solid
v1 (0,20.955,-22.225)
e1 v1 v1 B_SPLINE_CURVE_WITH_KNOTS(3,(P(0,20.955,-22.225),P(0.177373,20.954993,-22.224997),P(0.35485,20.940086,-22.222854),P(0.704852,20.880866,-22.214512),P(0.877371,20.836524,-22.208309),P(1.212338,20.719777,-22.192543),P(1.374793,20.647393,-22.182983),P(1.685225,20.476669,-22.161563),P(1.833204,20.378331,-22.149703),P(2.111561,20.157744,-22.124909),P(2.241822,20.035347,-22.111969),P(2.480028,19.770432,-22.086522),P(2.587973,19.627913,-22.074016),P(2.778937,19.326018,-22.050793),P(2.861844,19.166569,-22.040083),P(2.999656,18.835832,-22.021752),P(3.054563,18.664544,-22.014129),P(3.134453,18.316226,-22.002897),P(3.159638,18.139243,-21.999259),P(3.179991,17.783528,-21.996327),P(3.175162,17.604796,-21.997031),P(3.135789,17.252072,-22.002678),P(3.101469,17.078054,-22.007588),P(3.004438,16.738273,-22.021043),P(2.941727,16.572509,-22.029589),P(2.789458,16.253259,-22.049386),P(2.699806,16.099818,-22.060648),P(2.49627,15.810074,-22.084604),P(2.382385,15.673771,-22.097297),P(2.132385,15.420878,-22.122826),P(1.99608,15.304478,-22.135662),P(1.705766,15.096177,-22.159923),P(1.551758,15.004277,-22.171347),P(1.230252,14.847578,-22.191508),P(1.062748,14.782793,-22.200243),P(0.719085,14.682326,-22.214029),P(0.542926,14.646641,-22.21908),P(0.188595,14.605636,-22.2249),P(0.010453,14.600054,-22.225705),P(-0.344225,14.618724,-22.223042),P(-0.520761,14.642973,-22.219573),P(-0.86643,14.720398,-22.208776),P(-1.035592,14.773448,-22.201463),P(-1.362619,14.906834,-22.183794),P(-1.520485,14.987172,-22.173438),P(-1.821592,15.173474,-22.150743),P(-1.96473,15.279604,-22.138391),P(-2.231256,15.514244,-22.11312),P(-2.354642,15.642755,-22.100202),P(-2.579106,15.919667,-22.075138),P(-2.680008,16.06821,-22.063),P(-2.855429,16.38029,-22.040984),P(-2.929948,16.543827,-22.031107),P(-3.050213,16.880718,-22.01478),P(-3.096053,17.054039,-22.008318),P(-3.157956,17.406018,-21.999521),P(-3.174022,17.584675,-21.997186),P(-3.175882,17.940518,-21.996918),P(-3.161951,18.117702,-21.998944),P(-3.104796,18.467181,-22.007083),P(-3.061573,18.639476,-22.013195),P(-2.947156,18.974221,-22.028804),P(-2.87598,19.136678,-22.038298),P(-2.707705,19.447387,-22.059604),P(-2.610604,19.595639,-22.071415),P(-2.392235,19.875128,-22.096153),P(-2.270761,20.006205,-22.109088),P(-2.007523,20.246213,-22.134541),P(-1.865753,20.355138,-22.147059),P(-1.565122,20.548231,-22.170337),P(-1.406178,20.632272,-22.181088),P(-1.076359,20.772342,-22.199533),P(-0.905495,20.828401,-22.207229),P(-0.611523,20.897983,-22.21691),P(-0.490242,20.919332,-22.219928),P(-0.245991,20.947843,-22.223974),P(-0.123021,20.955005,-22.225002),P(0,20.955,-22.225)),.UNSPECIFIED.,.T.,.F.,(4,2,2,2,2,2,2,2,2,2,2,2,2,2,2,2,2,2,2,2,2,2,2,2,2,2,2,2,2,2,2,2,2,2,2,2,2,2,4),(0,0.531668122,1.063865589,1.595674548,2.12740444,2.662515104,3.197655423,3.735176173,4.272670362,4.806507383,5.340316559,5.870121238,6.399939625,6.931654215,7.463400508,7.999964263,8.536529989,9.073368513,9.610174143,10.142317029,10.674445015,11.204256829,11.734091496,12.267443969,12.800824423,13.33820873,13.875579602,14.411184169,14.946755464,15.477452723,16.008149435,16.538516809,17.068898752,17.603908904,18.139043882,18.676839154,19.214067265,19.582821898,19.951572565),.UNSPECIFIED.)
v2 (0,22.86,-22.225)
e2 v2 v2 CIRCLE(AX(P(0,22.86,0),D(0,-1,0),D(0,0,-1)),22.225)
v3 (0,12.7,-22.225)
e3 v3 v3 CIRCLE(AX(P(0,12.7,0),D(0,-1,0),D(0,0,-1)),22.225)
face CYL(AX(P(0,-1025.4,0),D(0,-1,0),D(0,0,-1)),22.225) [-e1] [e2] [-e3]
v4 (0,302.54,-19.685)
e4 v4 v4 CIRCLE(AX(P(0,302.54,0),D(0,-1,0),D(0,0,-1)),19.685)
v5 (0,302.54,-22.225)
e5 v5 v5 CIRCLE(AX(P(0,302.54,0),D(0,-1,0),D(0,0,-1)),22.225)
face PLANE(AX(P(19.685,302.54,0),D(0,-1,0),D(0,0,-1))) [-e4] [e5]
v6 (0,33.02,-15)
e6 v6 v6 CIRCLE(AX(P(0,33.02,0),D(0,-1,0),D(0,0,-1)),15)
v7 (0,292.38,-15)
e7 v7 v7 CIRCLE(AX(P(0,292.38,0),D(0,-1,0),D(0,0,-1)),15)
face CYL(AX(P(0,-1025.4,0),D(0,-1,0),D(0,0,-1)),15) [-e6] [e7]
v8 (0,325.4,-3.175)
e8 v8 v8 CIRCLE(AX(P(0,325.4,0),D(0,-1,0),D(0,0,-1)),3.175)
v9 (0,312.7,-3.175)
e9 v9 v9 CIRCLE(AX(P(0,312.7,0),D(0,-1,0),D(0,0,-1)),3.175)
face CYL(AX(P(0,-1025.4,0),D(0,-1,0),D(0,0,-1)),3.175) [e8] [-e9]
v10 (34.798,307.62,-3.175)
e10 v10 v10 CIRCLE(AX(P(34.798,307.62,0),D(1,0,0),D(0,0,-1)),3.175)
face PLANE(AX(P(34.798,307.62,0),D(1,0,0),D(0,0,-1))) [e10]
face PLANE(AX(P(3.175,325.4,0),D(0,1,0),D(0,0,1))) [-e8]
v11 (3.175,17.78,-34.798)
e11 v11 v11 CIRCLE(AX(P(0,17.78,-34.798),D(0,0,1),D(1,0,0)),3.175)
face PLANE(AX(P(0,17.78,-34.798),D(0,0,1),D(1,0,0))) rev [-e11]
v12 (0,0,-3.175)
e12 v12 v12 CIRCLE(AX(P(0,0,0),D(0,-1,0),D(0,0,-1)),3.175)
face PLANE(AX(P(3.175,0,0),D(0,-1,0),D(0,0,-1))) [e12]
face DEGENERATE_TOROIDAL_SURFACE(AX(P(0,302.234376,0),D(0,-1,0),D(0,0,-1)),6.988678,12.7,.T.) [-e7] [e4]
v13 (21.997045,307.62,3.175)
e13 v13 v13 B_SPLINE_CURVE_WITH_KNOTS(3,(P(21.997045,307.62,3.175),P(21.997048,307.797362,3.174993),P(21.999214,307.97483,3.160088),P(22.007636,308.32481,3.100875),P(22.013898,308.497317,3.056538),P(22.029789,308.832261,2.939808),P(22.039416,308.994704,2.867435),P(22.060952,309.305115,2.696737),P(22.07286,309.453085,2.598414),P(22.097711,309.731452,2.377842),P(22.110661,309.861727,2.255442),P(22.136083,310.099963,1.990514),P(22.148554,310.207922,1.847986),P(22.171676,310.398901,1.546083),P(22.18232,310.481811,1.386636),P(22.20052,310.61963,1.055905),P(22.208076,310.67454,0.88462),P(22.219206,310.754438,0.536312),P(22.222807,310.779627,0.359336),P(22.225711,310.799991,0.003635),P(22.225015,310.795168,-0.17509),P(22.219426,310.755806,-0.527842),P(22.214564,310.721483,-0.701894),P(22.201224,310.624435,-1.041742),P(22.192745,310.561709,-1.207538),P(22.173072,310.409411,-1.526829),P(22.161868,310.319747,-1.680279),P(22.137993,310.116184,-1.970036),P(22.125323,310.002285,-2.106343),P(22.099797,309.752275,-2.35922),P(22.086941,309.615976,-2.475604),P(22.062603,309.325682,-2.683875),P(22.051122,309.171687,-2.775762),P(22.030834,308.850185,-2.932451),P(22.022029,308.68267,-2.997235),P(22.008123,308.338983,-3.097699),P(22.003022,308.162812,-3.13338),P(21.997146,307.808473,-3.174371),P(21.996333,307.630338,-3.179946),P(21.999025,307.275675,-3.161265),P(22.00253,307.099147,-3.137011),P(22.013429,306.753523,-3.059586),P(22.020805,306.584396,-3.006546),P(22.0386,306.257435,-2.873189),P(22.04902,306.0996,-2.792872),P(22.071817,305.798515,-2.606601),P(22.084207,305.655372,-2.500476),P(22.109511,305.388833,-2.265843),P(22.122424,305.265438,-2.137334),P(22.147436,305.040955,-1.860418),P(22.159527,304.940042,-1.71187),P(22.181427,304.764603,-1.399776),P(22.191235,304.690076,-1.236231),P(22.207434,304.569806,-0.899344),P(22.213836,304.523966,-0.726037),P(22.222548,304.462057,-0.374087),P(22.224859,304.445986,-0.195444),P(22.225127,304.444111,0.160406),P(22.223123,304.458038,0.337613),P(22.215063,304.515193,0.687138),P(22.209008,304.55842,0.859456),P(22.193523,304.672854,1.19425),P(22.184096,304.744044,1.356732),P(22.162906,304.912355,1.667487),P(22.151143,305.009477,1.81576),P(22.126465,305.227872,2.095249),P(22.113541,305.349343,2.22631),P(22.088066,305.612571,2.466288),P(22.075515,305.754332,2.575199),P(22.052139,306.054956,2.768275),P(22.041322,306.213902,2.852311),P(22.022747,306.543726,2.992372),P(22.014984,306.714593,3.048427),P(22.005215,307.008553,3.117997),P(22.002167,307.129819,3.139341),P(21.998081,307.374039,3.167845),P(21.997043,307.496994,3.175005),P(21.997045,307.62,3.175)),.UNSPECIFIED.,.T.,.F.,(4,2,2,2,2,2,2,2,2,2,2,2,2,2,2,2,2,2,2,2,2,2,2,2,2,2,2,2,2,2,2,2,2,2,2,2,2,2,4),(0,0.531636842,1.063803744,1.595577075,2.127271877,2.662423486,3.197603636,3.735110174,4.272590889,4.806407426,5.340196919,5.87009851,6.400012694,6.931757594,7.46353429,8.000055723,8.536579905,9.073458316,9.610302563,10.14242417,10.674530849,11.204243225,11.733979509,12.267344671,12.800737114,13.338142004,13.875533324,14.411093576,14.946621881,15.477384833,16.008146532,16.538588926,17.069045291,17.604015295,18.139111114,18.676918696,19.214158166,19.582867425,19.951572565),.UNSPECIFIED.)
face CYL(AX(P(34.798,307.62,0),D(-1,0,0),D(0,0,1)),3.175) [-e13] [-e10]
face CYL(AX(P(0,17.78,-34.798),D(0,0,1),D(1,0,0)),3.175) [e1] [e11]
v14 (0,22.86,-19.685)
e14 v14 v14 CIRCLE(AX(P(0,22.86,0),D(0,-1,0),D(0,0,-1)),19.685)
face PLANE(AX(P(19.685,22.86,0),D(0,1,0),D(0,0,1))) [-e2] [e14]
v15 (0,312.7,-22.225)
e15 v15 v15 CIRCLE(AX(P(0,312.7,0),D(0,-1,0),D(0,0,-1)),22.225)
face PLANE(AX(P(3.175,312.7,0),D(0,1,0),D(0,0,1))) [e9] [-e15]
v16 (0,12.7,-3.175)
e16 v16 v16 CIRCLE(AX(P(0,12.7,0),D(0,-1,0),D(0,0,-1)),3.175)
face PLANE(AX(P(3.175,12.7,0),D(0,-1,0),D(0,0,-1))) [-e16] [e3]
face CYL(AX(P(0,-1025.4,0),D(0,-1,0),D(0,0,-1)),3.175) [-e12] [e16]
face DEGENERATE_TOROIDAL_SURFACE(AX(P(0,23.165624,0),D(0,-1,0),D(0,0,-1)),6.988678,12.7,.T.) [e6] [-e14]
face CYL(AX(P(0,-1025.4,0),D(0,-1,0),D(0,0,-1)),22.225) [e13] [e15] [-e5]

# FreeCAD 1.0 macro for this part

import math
import FreeCAD as App
import Part
import Sketcher

V = App.Vector
Q = App.Units.Quantity

doc = App.newDocument("Part")
body = doc.addObject("PartDesign::Body", "Body")

# Sketch on XY plane
sketch1 = body.newObject("Sketcher::SketchObject", "Sketch")
sketch1.AttachmentSupport = (doc.getObject("XY_Plane"), [""])
sketch1.MapMode = "FlatFace"
sketch1.addGeometry([
    Part.LineSegment(V(15, 33, 0), V(15, 292.4, 0)),  # 0
    Part.ArcOfCircle(Part.Circle(V(7, 302.2, 0), V(0, 0, 1), 12.7), math.radians(-51), math.radians(1)),  # 1
    Part.LineSegment(V(19.7, 302.5, 0), V(22.2, 302.5, 0)),  # 2
    Part.LineSegment(V(22.2, 302.5, 0), V(22.2, 312.7, 0)),  # 3
    Part.LineSegment(V(22.2, 312.7, 0), V(3.2, 312.7, 0)),  # 4
    Part.LineSegment(V(3.2, 312.7, 0), V(3.2, 325.4, 0)),  # 5
    Part.LineSegment(V(3.2, 325.4, 0), V(0, 325.4, 0)),  # 6
    Part.LineSegment(V(0, 325.4, 0), V(0, 0, 0)),  # 7
    Part.LineSegment(V(0, 0, 0), V(3.2, 0, 0)),  # 8
    Part.LineSegment(V(3.2, 0, 0), V(3.2, 12.7, 0)),  # 9
    Part.LineSegment(V(3.2, 12.7, 0), V(22.2, 12.7, 0)),  # 10
    Part.LineSegment(V(22.2, 12.7, 0), V(22.2, 22.9, 0)),  # 11
    Part.LineSegment(V(22.2, 22.9, 0), V(19.7, 22.9, 0)),  # 12
    Part.ArcOfCircle(Part.Circle(V(7, 23.2, 0), V(0, 0, 1), 12.7), math.radians(-1), math.radians(51)),  # 13
], False)
sketch1.addConstraint([
    Sketcher.Constraint("Coincident", 0, 2, 1, 1),
    Sketcher.Constraint("Coincident", 1, 2, 2, 1),
    Sketcher.Constraint("Coincident", 2, 2, 3, 1),
    Sketcher.Constraint("Coincident", 3, 2, 4, 1),
    Sketcher.Constraint("Coincident", 4, 2, 5, 1),
    Sketcher.Constraint("Coincident", 5, 2, 6, 1),
    Sketcher.Constraint("Coincident", 6, 2, 7, 1),
    Sketcher.Constraint("Coincident", 7, 2, 8, 1),
    Sketcher.Constraint("Coincident", 8, 2, 9, 1),
    Sketcher.Constraint("Coincident", 9, 2, 10, 1),
    Sketcher.Constraint("Coincident", 10, 2, 11, 1),
    Sketcher.Constraint("Coincident", 11, 2, 12, 1),
    Sketcher.Constraint("Coincident", 12, 2, 13, 1),
    Sketcher.Constraint("Coincident", 13, 2, 0, 1),
    Sketcher.Constraint("Vertical", 0),
    Sketcher.Constraint("Horizontal", 2),
    Sketcher.Constraint("Vertical", 3),
    Sketcher.Constraint("Horizontal", 4),
    Sketcher.Constraint("Vertical", 5),
    Sketcher.Constraint("Horizontal", 6),
    Sketcher.Constraint("Vertical", 7),
    Sketcher.Constraint("Horizontal", 8),
    Sketcher.Constraint("Vertical", 9),
    Sketcher.Constraint("Horizontal", 10),
    Sketcher.Constraint("Vertical", 11),
    Sketcher.Constraint("Horizontal", 12),
    Sketcher.Constraint("Coincident", 7, 2, -1, 1),
    Sketcher.Constraint("Equal", 1, 13),
    Sketcher.Constraint("Vertical", 1, 3, 13, 3),
    Sketcher.Constraint("Vertical", 5, 2, 8, 2),
    Sketcher.Constraint("Vertical", 3, 2, 10, 2),
    Sketcher.Constraint("Vertical", 1, 2, 12, 2),
    Sketcher.Constraint("Equal", 5, 9),
    Sketcher.Constraint("Equal", 3, 11),
    Sketcher.Constraint("Radius", 1, Q("0.5 in")),
    Sketcher.Constraint("DistanceX", 2, 1, 2, 2, Q("0.1 in")),
    Sketcher.Constraint("DistanceY", 3, 1, 3, 2, Q("0.4 in")),
    Sketcher.Constraint("DistanceY", 5, 1, 5, 2, Q("0.5 in")),
    Sketcher.Constraint("DistanceX", 4, 2, 4, 1, Q("0.75 in")),
    Sketcher.Constraint("DistanceY", -1, 1, 13, 2, Q("1.3 in")),
    Sketcher.Constraint("DistanceX", 6, 2, 6, 1, Q("0.125 in")),
    Sketcher.Constraint("DistanceY", 0, 1, 0, 2, 259.36),
    Sketcher.Constraint("DistanceX", -1, 1, 0, 2, 15.0),
])
revolution = body.newObject("PartDesign::Revolution", "Revolution")
revolution.Profile = sketch1
revolution.ReferenceAxis = (sketch1, ["V_Axis"])
revolution.Angle = 360

# Sketch on YZ plane
sketch2 = body.newObject("Sketcher::SketchObject", "Sketch001")
sketch2.AttachmentSupport = (doc.getObject("YZ_Plane"), [""])
sketch2.MapMode = "FlatFace"
sketch2.addGeometry(Part.Circle(V(307.6, 0, 0), V(0, 0, 1), 3.2), False)
sketch2.addConstraint([
    Sketcher.Constraint("PointOnObject", 0, 3, -1),
    Sketcher.Constraint("Diameter", 0, Q("0.25 in")),
    Sketcher.Constraint("DistanceX", -1, 1, 0, 3, 307.62),
])
pad1 = body.newObject("PartDesign::Pad", "Pad")
pad1.Profile = sketch2
pad1.Length = Q("1.37 in")

# Sketch on XY plane
sketch3 = body.newObject("Sketcher::SketchObject", "Sketch002")
sketch3.AttachmentSupport = (doc.getObject("XY_Plane"), [""])
sketch3.MapMode = "FlatFace"
sketch3.addGeometry(Part.Circle(V(0, 17.8, 0), V(0, 0, 1), 3.2), False)
sketch3.addConstraint([
    Sketcher.Constraint("PointOnObject", 0, 3, -2),
    Sketcher.Constraint("Diameter", 0, Q("0.25 in")),
    Sketcher.Constraint("DistanceY", -1, 1, 0, 3, Q("0.7 in")),
])
pad2 = body.newObject("PartDesign::Pad", "Pad001")
pad2.Profile = sketch3
pad2.Length = Q("1.37 in")
pad2.Reversed = True

doc.recompute()
